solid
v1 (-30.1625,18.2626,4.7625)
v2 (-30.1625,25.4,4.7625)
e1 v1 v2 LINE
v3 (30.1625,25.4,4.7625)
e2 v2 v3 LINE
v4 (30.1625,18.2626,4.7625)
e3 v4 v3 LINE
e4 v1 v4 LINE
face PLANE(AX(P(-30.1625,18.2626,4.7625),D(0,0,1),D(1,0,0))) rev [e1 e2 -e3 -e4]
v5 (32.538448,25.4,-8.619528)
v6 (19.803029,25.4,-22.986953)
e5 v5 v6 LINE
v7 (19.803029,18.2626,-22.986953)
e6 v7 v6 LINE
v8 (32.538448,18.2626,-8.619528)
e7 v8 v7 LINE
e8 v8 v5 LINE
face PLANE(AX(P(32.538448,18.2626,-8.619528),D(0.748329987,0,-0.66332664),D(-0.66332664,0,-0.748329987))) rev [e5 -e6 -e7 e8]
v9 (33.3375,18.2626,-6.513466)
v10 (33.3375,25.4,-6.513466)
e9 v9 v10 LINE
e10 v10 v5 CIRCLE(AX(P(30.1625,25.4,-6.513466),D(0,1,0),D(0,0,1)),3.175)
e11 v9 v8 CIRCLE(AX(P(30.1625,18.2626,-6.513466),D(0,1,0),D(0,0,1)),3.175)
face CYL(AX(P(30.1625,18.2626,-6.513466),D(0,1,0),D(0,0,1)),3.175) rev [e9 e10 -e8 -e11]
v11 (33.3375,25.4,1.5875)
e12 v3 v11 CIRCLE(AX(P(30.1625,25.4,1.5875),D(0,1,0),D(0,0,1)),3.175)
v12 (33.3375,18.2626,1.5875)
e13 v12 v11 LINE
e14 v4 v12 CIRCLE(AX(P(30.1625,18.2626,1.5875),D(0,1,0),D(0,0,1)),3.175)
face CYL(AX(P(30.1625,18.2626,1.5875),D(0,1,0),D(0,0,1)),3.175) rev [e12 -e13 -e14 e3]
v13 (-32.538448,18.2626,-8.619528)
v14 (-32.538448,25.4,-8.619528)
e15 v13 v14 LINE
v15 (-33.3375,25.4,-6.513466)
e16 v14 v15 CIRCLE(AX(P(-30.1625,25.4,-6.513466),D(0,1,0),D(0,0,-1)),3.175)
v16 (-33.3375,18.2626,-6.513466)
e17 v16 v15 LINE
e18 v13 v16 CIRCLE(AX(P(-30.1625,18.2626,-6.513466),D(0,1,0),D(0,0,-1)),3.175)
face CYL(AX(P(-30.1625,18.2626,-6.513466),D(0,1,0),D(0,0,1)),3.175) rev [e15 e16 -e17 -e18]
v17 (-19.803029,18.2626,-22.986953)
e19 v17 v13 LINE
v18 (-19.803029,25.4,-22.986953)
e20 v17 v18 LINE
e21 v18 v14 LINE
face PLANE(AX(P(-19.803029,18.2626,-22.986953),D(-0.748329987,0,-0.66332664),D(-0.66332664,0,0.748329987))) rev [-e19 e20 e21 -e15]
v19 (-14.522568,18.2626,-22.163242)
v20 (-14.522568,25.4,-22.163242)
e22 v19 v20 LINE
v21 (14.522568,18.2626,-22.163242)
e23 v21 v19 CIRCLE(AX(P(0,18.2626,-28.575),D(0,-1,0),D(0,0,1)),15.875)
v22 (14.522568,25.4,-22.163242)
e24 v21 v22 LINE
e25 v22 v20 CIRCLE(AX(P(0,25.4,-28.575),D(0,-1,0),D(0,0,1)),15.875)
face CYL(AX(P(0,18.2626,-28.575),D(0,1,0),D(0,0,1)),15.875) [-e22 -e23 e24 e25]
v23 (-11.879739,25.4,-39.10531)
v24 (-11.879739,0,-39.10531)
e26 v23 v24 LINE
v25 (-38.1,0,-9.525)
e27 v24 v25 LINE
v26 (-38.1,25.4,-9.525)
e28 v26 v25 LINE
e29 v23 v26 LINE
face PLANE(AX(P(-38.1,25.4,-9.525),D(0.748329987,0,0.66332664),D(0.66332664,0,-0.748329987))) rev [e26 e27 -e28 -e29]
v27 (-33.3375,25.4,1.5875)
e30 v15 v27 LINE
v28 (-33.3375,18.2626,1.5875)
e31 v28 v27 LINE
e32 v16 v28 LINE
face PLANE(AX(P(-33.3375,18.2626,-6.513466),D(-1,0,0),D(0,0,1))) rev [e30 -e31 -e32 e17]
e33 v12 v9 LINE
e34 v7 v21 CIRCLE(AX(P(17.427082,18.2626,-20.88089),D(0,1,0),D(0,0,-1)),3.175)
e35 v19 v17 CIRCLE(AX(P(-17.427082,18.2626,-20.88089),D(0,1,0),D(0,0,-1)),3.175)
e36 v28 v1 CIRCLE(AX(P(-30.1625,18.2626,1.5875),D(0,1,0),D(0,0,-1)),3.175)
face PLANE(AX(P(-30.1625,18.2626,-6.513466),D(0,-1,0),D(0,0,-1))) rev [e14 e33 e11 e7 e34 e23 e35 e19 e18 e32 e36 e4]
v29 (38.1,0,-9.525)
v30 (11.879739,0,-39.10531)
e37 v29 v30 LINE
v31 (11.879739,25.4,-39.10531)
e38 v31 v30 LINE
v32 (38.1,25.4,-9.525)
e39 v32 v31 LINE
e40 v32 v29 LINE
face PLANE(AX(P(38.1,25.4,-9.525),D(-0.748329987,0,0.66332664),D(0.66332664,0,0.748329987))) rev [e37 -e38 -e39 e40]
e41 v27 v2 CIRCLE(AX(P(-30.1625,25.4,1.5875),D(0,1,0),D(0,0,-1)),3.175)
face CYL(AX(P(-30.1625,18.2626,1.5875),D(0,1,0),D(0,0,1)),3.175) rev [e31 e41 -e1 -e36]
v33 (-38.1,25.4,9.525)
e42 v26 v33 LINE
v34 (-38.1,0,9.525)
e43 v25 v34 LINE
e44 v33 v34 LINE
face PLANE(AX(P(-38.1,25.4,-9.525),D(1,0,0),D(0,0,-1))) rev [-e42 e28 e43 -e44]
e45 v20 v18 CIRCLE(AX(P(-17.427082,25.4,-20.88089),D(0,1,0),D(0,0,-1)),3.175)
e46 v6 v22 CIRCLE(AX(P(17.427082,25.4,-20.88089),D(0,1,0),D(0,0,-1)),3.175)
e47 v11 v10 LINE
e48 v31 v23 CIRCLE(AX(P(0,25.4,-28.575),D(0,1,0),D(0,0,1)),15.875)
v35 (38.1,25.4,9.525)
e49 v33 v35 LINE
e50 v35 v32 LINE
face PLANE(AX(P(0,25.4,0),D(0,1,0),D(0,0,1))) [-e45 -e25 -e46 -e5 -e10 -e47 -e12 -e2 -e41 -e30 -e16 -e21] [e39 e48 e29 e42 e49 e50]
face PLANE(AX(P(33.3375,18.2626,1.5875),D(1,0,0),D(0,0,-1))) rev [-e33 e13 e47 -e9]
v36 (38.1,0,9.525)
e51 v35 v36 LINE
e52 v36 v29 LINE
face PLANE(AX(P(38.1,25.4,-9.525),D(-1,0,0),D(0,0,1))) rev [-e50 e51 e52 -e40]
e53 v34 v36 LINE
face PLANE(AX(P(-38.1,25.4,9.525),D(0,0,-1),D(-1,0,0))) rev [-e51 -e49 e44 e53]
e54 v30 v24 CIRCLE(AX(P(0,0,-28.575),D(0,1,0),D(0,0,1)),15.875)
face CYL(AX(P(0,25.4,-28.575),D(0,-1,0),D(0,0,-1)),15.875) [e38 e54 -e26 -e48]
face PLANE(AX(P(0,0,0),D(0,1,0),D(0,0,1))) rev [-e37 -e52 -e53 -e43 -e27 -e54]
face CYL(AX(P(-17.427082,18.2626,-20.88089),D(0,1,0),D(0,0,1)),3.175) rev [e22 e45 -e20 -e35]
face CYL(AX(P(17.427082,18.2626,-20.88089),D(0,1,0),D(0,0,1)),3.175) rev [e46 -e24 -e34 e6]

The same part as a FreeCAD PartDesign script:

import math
import FreeCAD as App
import Part
import Sketcher
Q = App.Units.Quantity


def add_polygon(sketch, points):
    """Adds a closed chain of lines whose ends are joined by coincident constraints."""
    first, n = sketch.GeometryCount, len(points)
    for a, b in zip(points, points[1:] + points[:1]):
        sketch.addGeometry(Part.LineSegment(App.Vector(*a, 0), App.Vector(*b, 0)), False)
    for i in range(n):
        sketch.addConstraint(Sketcher.Constraint("Coincident", first + i, 2, first + (i + 1) % n, 1))

doc = App.newDocument("Part")
body = doc.addObject("PartDesign::Body", "Body")

sketch1 = body.newObject("Sketcher::SketchObject", "Sketch")
sketch1.AttachmentSupport = (doc.getObject("XZ_Plane"), [""])
sketch1.MapMode = "FlatFace"
add_polygon(sketch1, [(-38, -10), (-38, 10), (38, 10), (38, -10)])
sketch1.addConstraint(Sketcher.Constraint("Vertical", 0))
sketch1.addConstraint(Sketcher.Constraint("Horizontal", 1))
sketch1.addConstraint(Sketcher.Constraint("Vertical", 2))
sketch1.addConstraint(Sketcher.Constraint("Horizontal", 3))
sketch1.addConstraint(Sketcher.Constraint("Symmetric", 0, 2, 2, 2, -1, 1))
sketch1.addConstraint(Sketcher.Constraint("DistanceX", 1, 1, 1, 2, Q("3 in")))
sketch1.addConstraint(Sketcher.Constraint("DistanceY", 0, 1, 0, 2, Q("0.75 in")))
pad1 = body.newObject("PartDesign::Pad", "Pad")
pad1.Profile = sketch1
pad1.Length = Q("1 in")
pad1.Reversed = True

sketch2 = body.newObject("Sketcher::SketchObject", "Sketch001")
sketch2.AttachmentSupport = (doc.getObject("XZ_Plane"), [""])
sketch2.MapMode = "FlatFace"
sketch2.addGeometry(Part.LineSegment(App.Vector(-12, -39, 0), App.Vector(-38, -10, 0)), False)
sketch2.addGeometry(Part.LineSegment(App.Vector(-38, -10, 0), App.Vector(-38, 10, 0)), False)
sketch2.addGeometry(Part.LineSegment(App.Vector(-38, 10, 0), App.Vector(38, 10, 0)), False)
sketch2.addGeometry(Part.LineSegment(App.Vector(38, 10, 0), App.Vector(38, -10, 0)), False)
sketch2.addGeometry(Part.LineSegment(App.Vector(38, -10, 0), App.Vector(12, -39, 0)), False)
sketch2.addGeometry(Part.ArcOfCircle(Part.Circle(App.Vector(0, -29, 0), App.Vector(0, 0, 1), 16), math.radians(-138), math.radians(-42)), False)
sketch2.addConstraint(Sketcher.Constraint("Coincident", 0, 2, 1, 1))
sketch2.addConstraint(Sketcher.Constraint("Coincident", 1, 2, 2, 1))
sketch2.addConstraint(Sketcher.Constraint("Coincident", 2, 2, 3, 1))
sketch2.addConstraint(Sketcher.Constraint("Coincident", 3, 2, 4, 1))
sketch2.addConstraint(Sketcher.Constraint("Tangent", 4, 2, 5, 2))
sketch2.addConstraint(Sketcher.Constraint("Tangent", 5, 1, 0, 1))
sketch2.addConstraint(Sketcher.Constraint("Vertical", 1))
sketch2.addConstraint(Sketcher.Constraint("Horizontal", 2))
sketch2.addConstraint(Sketcher.Constraint("Vertical", 3))
sketch2.addConstraint(Sketcher.Constraint("Symmetric", 0, 2, 2, 2, -1, 1))
sketch2.addConstraint(Sketcher.Constraint("Symmetric", 4, 2, 5, 1, -2))
sketch2.addConstraint(Sketcher.Constraint("DistanceX", 2, 1, 2, 2, Q("3 in")))
sketch2.addConstraint(Sketcher.Constraint("Radius", 5, Q("0.625 in")))
sketch2.addConstraint(Sketcher.Constraint("DistanceY", 1, 1, 1, 2, Q("0.75 in")))
sketch2.addConstraint(Sketcher.Constraint("DistanceY", 5, 3, 1, 2, Q("1.5 in")))
pad2 = body.newObject("PartDesign::Pad", "Pad001")
pad2.Profile = sketch2
pad2.Length = Q("1 in")
pad2.Reversed = True

sketch3 = body.newObject("Sketcher::SketchObject", "Sketch002")
sketch3.AttachmentSupport = (doc.getObject("XZ_Plane"), [""])
sketch3.MapMode = "FlatFace"
sketch3.AttachmentOffset = App.Placement(App.Vector(0, 0, -1 * 25.4), App.Rotation())
sketch3.addGeometry(Part.LineSegment(App.Vector(-30.2, 4.8, 0), App.Vector(30.2, 4.8, 0)), False)
sketch3.addGeometry(Part.ArcOfCircle(Part.Circle(App.Vector(30.2, 1.6, 0), App.Vector(0, 0, 1), 3.2), math.radians(0), math.radians(90)), False)
sketch3.addGeometry(Part.LineSegment(App.Vector(33.3, 1.6, 0), App.Vector(33.3, -6.5, 0)), False)
sketch3.addGeometry(Part.ArcOfCircle(Part.Circle(App.Vector(30.2, -6.5, 0), App.Vector(0, 0, 1), 3.2), math.radians(-42), math.radians(0)), False)
sketch3.addGeometry(Part.LineSegment(App.Vector(32.5, -8.6, 0), App.Vector(19.8, -23, 0)), False)
sketch3.addGeometry(Part.ArcOfCircle(Part.Circle(App.Vector(17.4, -20.9, 0), App.Vector(0, 0, 1), 3.2), math.radians(-156), math.radians(-42)), False)
sketch3.addGeometry(Part.ArcOfCircle(Part.Circle(App.Vector(0, -28.6, 0), App.Vector(0, 0, 1), 15.9), math.radians(24), math.radians(156)), False)
sketch3.addGeometry(Part.ArcOfCircle(Part.Circle(App.Vector(-17.4, -20.9, 0), App.Vector(0, 0, 1), 3.2), math.radians(-138), math.radians(-24)), False)
sketch3.addGeometry(Part.LineSegment(App.Vector(-19.8, -23, 0), App.Vector(-32.5, -8.6, 0)), False)
sketch3.addGeometry(Part.ArcOfCircle(Part.Circle(App.Vector(-30.2, -6.5, 0), App.Vector(0, 0, 1), 3.2), math.radians(-180), math.radians(-138)), False)
sketch3.addGeometry(Part.LineSegment(App.Vector(-33.3, -6.5, 0), App.Vector(-33.3, 1.6, 0)), False)
sketch3.addGeometry(Part.ArcOfCircle(Part.Circle(App.Vector(-30.2, 1.6, 0), App.Vector(0, 0, 1), 3.2), math.radians(90), math.radians(180)), False)
sketch3.addConstraint(Sketcher.Constraint("Tangent", 0, 2, 1, 2))
sketch3.addConstraint(Sketcher.Constraint("Tangent", 1, 1, 2, 1))
sketch3.addConstraint(Sketcher.Constraint("Tangent", 2, 2, 3, 2))
sketch3.addConstraint(Sketcher.Constraint("Tangent", 3, 1, 4, 1))
sketch3.addConstraint(Sketcher.Constraint("Tangent", 4, 2, 5, 2))
sketch3.addConstraint(Sketcher.Constraint("Tangent", 5, 1, 6, 1))
sketch3.addConstraint(Sketcher.Constraint("Tangent", 6, 2, 7, 2))
sketch3.addConstraint(Sketcher.Constraint("Tangent", 7, 1, 8, 1))
sketch3.addConstraint(Sketcher.Constraint("Tangent", 8, 2, 9, 2))
sketch3.addConstraint(Sketcher.Constraint("Tangent", 9, 1, 10, 1))
sketch3.addConstraint(Sketcher.Constraint("Tangent", 10, 2, 11, 2))
sketch3.addConstraint(Sketcher.Constraint("Tangent", 11, 1, 0, 1))
sketch3.addConstraint(Sketcher.Constraint("Horizontal", 0))
sketch3.addConstraint(Sketcher.Constraint("Vertical", 2))
sketch3.addConstraint(Sketcher.Constraint("Vertical", 10))
sketch3.addConstraint(Sketcher.Constraint("Equal", 1, 3))
sketch3.addConstraint(Sketcher.Constraint("Equal", 3, 5))
sketch3.addConstraint(Sketcher.Constraint("Equal", 5, 7))
sketch3.addConstraint(Sketcher.Constraint("Equal", 7, 9))
sketch3.addConstraint(Sketcher.Constraint("Equal", 9, 11))
sketch3.addConstraint(Sketcher.Constraint("Symmetric", 5, 3, 7, 3, -2))
sketch3.addConstraint(Sketcher.Constraint("Symmetric", 3, 3, 9, 3, -2))
sketch3.addConstraint(Sketcher.Constraint("Radius", 1, Q("0.125 in")))
sketch3.addConstraint(Sketcher.Constraint("Radius", 6, Q("0.625 in")))
sketch3.addConstraint(Sketcher.Constraint("DistanceX", 0, 1, 0, 2, Q("2.375 in")))
sketch3.addConstraint(Sketcher.Constraint("DistanceY", -1, 1, 1, 3, Q("0.0625 in")))
sketch3.addConstraint(Sketcher.Constraint("DistanceY", 6, 3, -1, 1, Q("1.125 in")))
sketch3.addConstraint(Sketcher.Constraint("DistanceY", 2, 2, 2, 1, 8.100966))
sketch3.addConstraint(Sketcher.Constraint("DistanceX", -1, 1, 5, 3, 17.427082))
pocket1 = body.newObject("PartDesign::Pocket", "Pocket")
pocket1.Profile = sketch3
pocket1.Length = Q("0.281 in")
pocket1.Reversed = True

doc.recompute()
